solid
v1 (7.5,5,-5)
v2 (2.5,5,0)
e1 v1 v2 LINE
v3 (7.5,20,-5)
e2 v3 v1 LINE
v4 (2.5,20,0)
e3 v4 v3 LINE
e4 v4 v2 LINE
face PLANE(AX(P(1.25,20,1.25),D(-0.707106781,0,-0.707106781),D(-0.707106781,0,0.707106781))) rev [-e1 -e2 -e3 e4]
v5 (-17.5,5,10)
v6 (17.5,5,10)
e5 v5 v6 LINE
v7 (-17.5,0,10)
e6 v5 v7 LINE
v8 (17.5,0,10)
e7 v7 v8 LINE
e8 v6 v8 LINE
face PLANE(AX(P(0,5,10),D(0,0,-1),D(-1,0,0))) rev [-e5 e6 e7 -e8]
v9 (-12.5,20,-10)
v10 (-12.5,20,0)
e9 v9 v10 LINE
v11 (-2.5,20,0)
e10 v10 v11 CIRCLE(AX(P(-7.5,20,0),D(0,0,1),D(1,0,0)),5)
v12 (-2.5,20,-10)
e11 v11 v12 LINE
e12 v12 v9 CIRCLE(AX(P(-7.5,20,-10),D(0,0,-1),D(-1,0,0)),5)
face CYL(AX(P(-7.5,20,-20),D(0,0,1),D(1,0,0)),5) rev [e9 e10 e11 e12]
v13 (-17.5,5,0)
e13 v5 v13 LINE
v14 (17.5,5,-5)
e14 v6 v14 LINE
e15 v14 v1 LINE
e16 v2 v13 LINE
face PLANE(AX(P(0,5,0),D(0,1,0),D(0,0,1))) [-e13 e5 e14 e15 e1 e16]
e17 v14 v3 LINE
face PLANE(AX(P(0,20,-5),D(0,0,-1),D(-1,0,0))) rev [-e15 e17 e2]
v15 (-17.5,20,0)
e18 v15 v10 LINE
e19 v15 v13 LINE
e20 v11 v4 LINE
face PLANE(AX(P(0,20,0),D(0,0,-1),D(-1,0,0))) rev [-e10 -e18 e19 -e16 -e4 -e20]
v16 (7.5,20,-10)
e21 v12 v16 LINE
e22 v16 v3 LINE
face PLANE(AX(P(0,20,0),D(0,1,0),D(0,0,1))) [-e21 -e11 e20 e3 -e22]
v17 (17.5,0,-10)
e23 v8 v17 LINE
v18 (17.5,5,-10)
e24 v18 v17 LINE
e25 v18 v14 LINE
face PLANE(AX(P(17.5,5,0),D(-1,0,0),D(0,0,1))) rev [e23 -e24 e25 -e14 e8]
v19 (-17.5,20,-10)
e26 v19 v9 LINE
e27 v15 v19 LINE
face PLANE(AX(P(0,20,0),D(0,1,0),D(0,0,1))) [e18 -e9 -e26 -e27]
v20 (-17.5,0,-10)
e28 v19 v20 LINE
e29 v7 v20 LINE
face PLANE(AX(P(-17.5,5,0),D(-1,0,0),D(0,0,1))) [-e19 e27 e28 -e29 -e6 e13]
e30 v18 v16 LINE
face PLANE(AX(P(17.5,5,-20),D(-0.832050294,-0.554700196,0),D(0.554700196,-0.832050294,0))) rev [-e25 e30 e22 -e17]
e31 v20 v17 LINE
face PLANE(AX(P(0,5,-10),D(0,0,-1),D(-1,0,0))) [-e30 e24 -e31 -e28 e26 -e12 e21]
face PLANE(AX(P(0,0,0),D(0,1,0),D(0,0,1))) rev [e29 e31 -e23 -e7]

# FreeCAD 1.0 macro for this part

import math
import FreeCAD as App
import Part
import Sketcher


def add_polygon(sketch, points):
    """Adds a closed chain of lines whose ends are joined by coincident constraints."""
    first, n = sketch.GeometryCount, len(points)
    for a, b in zip(points, points[1:] + points[:1]):
        sketch.addGeometry(Part.LineSegment(App.Vector(*a, 0), App.Vector(*b, 0)), False)
    for i in range(n):
        sketch.addConstraint(Sketcher.Constraint("Coincident", first + i, 2, first + (i + 1) % n, 1))

doc = App.newDocument("Part")
body = doc.addObject("PartDesign::Body", "Body")

# Sketch on XZ plane
sketch1 = doc.addObject("Sketcher::SketchObject", "Sketch")
body.addObject(sketch1)
sketch1.AttachmentSupport = (doc.XZ_Plane, [""])
sketch1.MapMode = "FlatFace"
add_polygon(sketch1, [(-18, -10), (-18, 10), (18, 10), (18, -10)])  # lines 0-3
sketch1.addConstraint(Sketcher.Constraint("Vertical", 0))
sketch1.addConstraint(Sketcher.Constraint("Horizontal", 1))
sketch1.addConstraint(Sketcher.Constraint("Vertical", 2))
sketch1.addConstraint(Sketcher.Constraint("Horizontal", 3))
sketch1.addConstraint(Sketcher.Constraint("Symmetric", 0, 2, 2, 2, -1, 1))
sketch1.addConstraint(Sketcher.Constraint("DistanceX", 1, 1, 1, 2, 35.0))
sketch1.addConstraint(Sketcher.Constraint("DistanceY", 0, 1, 0, 2, 20.0))
pad1 = doc.addObject("PartDesign::Pad", "Pad")
body.addObject(pad1)
pad1.Profile = sketch1
pad1.Length = 5
pad1.Reversed = True

# Sketch on XZ plane
sketch2 = doc.addObject("Sketcher::SketchObject", "Sketch001")
body.addObject(sketch2)
sketch2.AttachmentSupport = (doc.XZ_Plane, [""])
sketch2.MapMode = "FlatFace"
add_polygon(sketch2, [(-18, -10), (-18, 0), (2, 0), (8, -5), (18, -5), (18, -10)])  # lines 0-5
sketch2.addConstraint(Sketcher.Constraint("Vertical", 0))
sketch2.addConstraint(Sketcher.Constraint("Horizontal", 1))
sketch2.addConstraint(Sketcher.Constraint("Horizontal", 3))
sketch2.addConstraint(Sketcher.Constraint("Vertical", 4))
sketch2.addConstraint(Sketcher.Constraint("Horizontal", 5))
sketch2.addConstraint(Sketcher.Constraint("PointOnObject", 0, 2, -1))
sketch2.addConstraint(Sketcher.Constraint("Equal", 3, 0))
sketch2.addConstraint(Sketcher.Constraint("DistanceX", 1, 1, 1, 2, 20.0))
sketch2.addConstraint(Sketcher.Constraint("DistanceX", 3, 1, 3, 2, 10.0))
sketch2.addConstraint(Sketcher.Constraint("DistanceX", 5, 2, 5, 1, 35.0))
sketch2.addConstraint(Sketcher.Constraint("DistanceY", 4, 2, 4, 1, 5.0))
sketch2.addConstraint(Sketcher.Constraint("DistanceX", 0, 2, -1, 1, 17.5))
pad2 = doc.addObject("PartDesign::Pad", "Pad001")
body.addObject(pad2)
pad2.Profile = sketch2
pad2.Length = 20
pad2.Reversed = True

# Sketch on XY plane
sketch3 = doc.addObject("Sketcher::SketchObject", "Sketch002")
body.addObject(sketch3)
sketch3.AttachmentSupport = (doc.XY_Plane, [""])
sketch3.MapMode = "FlatFace"
sketch3.addGeometry(Part.LineSegment(App.Vector(-2, 20, 0), App.Vector(-12, 20, 0)), False)  # 0
sketch3.addGeometry(Part.ArcOfCircle(Part.Circle(App.Vector(-8, 20, 0), App.Vector(0, 0, 1), 5), math.radians(180), math.radians(360)), False)  # 1
add_polygon(sketch3, [(8, 20), (18, 5), (18, 20)])  # lines 2-4
sketch3.addConstraint(Sketcher.Constraint("Coincident", 0, 1, 1, 2))
sketch3.addConstraint(Sketcher.Constraint("Coincident", 1, 1, 0, 2))
sketch3.addConstraint(Sketcher.Constraint("Horizontal", 0))
sketch3.addConstraint(Sketcher.Constraint("Vertical", 3))
sketch3.addConstraint(Sketcher.Constraint("Horizontal", 4))
sketch3.addConstraint(Sketcher.Constraint("Horizontal", 1, 3, 0, 1))
sketch3.addConstraint(Sketcher.Constraint("Horizontal", 1, 1, 3, 2))
sketch3.addConstraint(Sketcher.Constraint("Equal", 0, 4))
sketch3.addConstraint(Sketcher.Constraint("Radius", 1, 5.0))
sketch3.addConstraint(Sketcher.Constraint("DistanceY", 3, 1, 3, 2, 15.0))
sketch3.addConstraint(Sketcher.Constraint("DistanceY", -1, 1, 1, 3, 20.0))
sketch3.addConstraint(Sketcher.Constraint("DistanceX", 0, 1, 2, 2, 20.0))
sketch3.addConstraint(Sketcher.Constraint("DistanceX", 1, 3, -1, 1, 7.5))
pocket1 = doc.addObject("PartDesign::Pocket", "Pocket")
body.addObject(pocket1)
pocket1.Profile = sketch3
pocket1.Length = 20

doc.recompute()
